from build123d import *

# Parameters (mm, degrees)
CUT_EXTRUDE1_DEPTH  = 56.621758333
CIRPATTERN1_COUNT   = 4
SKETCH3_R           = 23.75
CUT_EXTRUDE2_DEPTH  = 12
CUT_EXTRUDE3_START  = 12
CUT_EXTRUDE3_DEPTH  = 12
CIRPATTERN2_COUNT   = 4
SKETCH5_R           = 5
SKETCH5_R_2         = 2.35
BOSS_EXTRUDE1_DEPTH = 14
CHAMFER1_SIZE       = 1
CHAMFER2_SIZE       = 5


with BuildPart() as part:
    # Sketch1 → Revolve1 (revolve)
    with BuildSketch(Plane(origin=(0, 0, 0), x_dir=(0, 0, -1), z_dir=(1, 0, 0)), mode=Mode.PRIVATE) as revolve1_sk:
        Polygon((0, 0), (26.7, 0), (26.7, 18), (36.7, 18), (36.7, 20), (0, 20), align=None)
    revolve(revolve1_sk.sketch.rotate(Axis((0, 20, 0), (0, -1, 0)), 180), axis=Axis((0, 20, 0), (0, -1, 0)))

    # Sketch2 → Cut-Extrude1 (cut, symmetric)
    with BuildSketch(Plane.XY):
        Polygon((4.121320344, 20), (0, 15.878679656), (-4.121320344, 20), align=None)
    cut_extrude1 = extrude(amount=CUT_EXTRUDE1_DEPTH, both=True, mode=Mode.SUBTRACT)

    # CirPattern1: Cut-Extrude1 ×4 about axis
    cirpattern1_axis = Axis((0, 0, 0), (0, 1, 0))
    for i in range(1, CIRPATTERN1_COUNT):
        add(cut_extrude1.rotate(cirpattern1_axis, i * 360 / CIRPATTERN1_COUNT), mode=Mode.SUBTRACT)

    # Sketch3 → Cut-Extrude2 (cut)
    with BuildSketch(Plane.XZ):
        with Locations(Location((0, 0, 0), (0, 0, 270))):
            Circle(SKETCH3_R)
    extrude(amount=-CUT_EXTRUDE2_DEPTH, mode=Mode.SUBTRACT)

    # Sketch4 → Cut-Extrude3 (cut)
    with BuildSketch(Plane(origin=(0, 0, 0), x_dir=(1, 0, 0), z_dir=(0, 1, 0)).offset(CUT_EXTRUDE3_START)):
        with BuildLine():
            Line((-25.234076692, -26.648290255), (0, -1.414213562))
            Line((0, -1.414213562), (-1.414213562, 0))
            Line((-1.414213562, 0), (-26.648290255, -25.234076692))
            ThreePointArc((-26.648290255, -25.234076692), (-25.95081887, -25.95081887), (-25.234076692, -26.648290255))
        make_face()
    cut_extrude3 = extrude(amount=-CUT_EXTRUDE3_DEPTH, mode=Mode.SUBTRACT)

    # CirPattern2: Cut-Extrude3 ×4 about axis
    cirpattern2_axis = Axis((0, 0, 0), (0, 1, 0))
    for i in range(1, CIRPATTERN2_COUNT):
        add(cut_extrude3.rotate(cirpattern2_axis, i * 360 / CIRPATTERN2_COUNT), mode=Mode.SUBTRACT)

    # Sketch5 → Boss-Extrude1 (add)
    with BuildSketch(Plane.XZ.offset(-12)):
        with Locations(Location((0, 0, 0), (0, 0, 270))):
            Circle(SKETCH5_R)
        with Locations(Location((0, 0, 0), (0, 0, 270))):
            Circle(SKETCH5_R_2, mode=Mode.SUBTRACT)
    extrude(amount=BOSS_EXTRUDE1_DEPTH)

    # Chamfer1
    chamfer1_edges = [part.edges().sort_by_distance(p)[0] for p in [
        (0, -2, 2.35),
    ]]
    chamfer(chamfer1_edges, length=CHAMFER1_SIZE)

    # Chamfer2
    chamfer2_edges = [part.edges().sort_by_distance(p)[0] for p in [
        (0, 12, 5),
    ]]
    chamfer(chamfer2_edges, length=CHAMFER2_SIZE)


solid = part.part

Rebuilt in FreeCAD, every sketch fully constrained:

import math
import FreeCAD as App
import Part
import Sketcher
Q = App.Units.Quantity


def edges_at(feature, points):
    """Names of the edges that pass closest to the given points."""
    edges = feature.Shape.Edges
    near = lambda p: min(range(len(edges)), key=lambda i: edges[i].distToShape(Part.Vertex(*p))[0])
    return sorted({f"Edge{near(p) + 1}" for p in points})


def add_polygon(sketch, points):
    """Adds a closed chain of lines whose ends are joined by coincident constraints."""
    first, n = sketch.GeometryCount, len(points)
    for a, b in zip(points, points[1:] + points[:1]):
        sketch.addGeometry(Part.LineSegment(App.Vector(*a, 0), App.Vector(*b, 0)), False)
    for i in range(n):
        sketch.addConstraint(Sketcher.Constraint("Coincident", first + i, 2, first + (i + 1) % n, 1))

doc = App.newDocument("Part")
body = doc.addObject("PartDesign::Body", "Body")

sketch1 = body.newObject("Sketcher::SketchObject", "Sketch")
sketch1.AttachmentSupport = (doc.getObject("YZ_Plane"), [""])
sketch1.MapMode = "FlatFace"
add_polygon(sketch1, [(0, 0), (0, -26.7), (18, -26.7), (18, -36.7), (20, -36.7), (20, 0)])
sketch1.addConstraint(Sketcher.Constraint("Vertical", 0))
sketch1.addConstraint(Sketcher.Constraint("Horizontal", 1))
sketch1.addConstraint(Sketcher.Constraint("Vertical", 2))
sketch1.addConstraint(Sketcher.Constraint("Horizontal", 3))
sketch1.addConstraint(Sketcher.Constraint("Vertical", 4))
sketch1.addConstraint(Sketcher.Constraint("Horizontal", 5))
sketch1.addConstraint(Sketcher.Constraint("Coincident", 5, 2, -1, 1))
sketch1.addConstraint(Sketcher.Constraint("DistanceX", 1, 1, 1, 2, 18.0))
sketch1.addConstraint(Sketcher.Constraint("DistanceX", 3, 1, 3, 2, 2.0))
sketch1.addConstraint(Sketcher.Constraint("DistanceY", 2, 2, 2, 1, 10.0))
sketch1.addConstraint(Sketcher.Constraint("DistanceY", 0, 2, 0, 1, 26.7))
revolution = body.newObject("PartDesign::Revolution", "Revolution")
revolution.Profile = sketch1
revolution.ReferenceAxis = (sketch1, ["H_Axis"])
revolution.Angle = 360

sketch2 = body.newObject("Sketcher::SketchObject", "Sketch001")
sketch2.AttachmentSupport = (doc.getObject("XY_Plane"), [""])
sketch2.MapMode = "FlatFace"
add_polygon(sketch2, [(0, 16), (4, 20), (-4, 20)])
sketch2.addConstraint(Sketcher.Constraint("Horizontal", 1))
sketch2.addConstraint(Sketcher.Constraint("PointOnObject", 2, 2, -2))
sketch2.addConstraint(Sketcher.Constraint("Perpendicular", 0, 2))
sketch2.addConstraint(Sketcher.Constraint("Equal", 0, 2))
sketch2.addConstraint(Sketcher.Constraint("DistanceY", -1, 1, 0, 2, 20.0))
sketch2.addConstraint(Sketcher.Constraint("DistanceX", 1, 2, 1, 1, 8.242641))
pocket1 = body.newObject("PartDesign::Pocket", "Pocket")
pocket1.Profile = sketch2
pocket1.Length = 113.243517
pocket1.Midplane = True
doc.recompute()

polarpattern = body.newObject("PartDesign::PolarPattern", "PolarPattern")
polarpattern.Originals = [pocket1]
polarpattern.Axis = (doc.getObject("Y_Axis"), [""])
polarpattern.Angle = 360
polarpattern.Occurrences = 4
body.Tip = polarpattern

sketch3 = body.newObject("Sketcher::SketchObject", "Sketch002")
sketch3.AttachmentSupport = (doc.getObject("XZ_Plane"), [""])
sketch3.MapMode = "FlatFace"
sketch3.addGeometry(Part.Circle(App.Vector(0, 0, 0), App.Vector(0, 0, 1), 24), False)
sketch3.addConstraint(Sketcher.Constraint("Coincident", 0, 3, -1, 1))
sketch3.addConstraint(Sketcher.Constraint("Diameter", 0, 47.5))
pocket2 = body.newObject("PartDesign::Pocket", "Pocket001")
pocket2.Profile = sketch3
pocket2.Length = 12

sketch4 = body.newObject("Sketcher::SketchObject", "Sketch003")
sketch4.AttachmentSupport = (doc.getObject("XZ_Plane"), [""])
sketch4.MapMode = "FlatFace"
sketch4.AttachmentOffset = App.Placement(App.Vector(0, 0, -12), App.Rotation())
sketch4.addGeometry(Part.LineSegment(App.Vector(-25.2, 26.6, 0), App.Vector(0, 1.4, 0)), False)
sketch4.addGeometry(Part.LineSegment(App.Vector(0, 1.4, 0), App.Vector(-1.4, 0, 0)), False)
sketch4.addGeometry(Part.LineSegment(App.Vector(-1.4, 0, 0), App.Vector(-26.6, 25.2, 0)), False)
sketch4.addGeometry(Part.ArcOfCircle(Part.Circle(App.Vector(0, 0, 0), App.Vector(0, 0, 1), 36.7), math.radians(133.44), math.radians(136.56)), False)
sketch4.addConstraint(Sketcher.Constraint("Coincident", 0, 2, 1, 1))
sketch4.addConstraint(Sketcher.Constraint("Coincident", 1, 2, 2, 1))
sketch4.addConstraint(Sketcher.Constraint("Coincident", 2, 2, 3, 2))
sketch4.addConstraint(Sketcher.Constraint("Coincident", 3, 1, 0, 1))
sketch4.addConstraint(Sketcher.Constraint("Coincident", 3, 3, -1, 1))
sketch4.addConstraint(Sketcher.Constraint("PointOnObject", 0, 2, -2))
sketch4.addConstraint(Sketcher.Constraint("PointOnObject", 1, 2, -1))
sketch4.addConstraint(Sketcher.Constraint("Perpendicular", 0, 1))
sketch4.addConstraint(Sketcher.Constraint("Perpendicular", 1, 2))
sketch4.addConstraint(Sketcher.Constraint("Radius", 3, 36.699999))
sketch4.addConstraint(Sketcher.Constraint("Angle", 0, Q("-45 deg")))
sketch4.addConstraint(Sketcher.Constraint("Distance", 1, 2.0))
pocket3 = body.newObject("PartDesign::Pocket", "Pocket002")
pocket3.Profile = sketch4
pocket3.Length = 12
pocket3.Reversed = True
doc.recompute()

polarpattern2 = body.newObject("PartDesign::PolarPattern", "PolarPattern001")
polarpattern2.Originals = [pocket3]
polarpattern2.Axis = (doc.getObject("Y_Axis"), [""])
polarpattern2.Angle = 360
polarpattern2.Occurrences = 4
body.Tip = polarpattern2

sketch5 = body.newObject("Sketcher::SketchObject", "Sketch004")
sketch5.AttachmentSupport = (doc.getObject("XZ_Plane"), [""])
sketch5.MapMode = "FlatFace"
sketch5.AttachmentOffset = App.Placement(App.Vector(0, 0, -12), App.Rotation())
sketch5.addGeometry(Part.Circle(App.Vector(0, 0, 0), App.Vector(0, 0, 1), 5), False)
sketch5.addGeometry(Part.Circle(App.Vector(0, 0, 0), App.Vector(0, 0, 1), 2.4), False)
sketch5.addConstraint(Sketcher.Constraint("Coincident", 0, 3, -1, 1))
sketch5.addConstraint(Sketcher.Constraint("Coincident", 1, 3, -1, 1))
sketch5.addConstraint(Sketcher.Constraint("Diameter", 0, 10.0))
sketch5.addConstraint(Sketcher.Constraint("Diameter", 1, 4.7))
pad1 = body.newObject("PartDesign::Pad", "Pad")
pad1.Profile = sketch5
pad1.Length = 14
doc.recompute()

chamfer = body.newObject("PartDesign::Chamfer", "Chamfer")
chamfer.Base = (pad1, edges_at(pad1, [(0, -2, 2.35)]))
chamfer.Size = 1
doc.recompute()

chamfer2 = body.newObject("PartDesign::Chamfer", "Chamfer001")
chamfer2.Base = (chamfer, edges_at(chamfer, [(0, 12, 5)]))
chamfer2.Size = 5

doc.recompute()
